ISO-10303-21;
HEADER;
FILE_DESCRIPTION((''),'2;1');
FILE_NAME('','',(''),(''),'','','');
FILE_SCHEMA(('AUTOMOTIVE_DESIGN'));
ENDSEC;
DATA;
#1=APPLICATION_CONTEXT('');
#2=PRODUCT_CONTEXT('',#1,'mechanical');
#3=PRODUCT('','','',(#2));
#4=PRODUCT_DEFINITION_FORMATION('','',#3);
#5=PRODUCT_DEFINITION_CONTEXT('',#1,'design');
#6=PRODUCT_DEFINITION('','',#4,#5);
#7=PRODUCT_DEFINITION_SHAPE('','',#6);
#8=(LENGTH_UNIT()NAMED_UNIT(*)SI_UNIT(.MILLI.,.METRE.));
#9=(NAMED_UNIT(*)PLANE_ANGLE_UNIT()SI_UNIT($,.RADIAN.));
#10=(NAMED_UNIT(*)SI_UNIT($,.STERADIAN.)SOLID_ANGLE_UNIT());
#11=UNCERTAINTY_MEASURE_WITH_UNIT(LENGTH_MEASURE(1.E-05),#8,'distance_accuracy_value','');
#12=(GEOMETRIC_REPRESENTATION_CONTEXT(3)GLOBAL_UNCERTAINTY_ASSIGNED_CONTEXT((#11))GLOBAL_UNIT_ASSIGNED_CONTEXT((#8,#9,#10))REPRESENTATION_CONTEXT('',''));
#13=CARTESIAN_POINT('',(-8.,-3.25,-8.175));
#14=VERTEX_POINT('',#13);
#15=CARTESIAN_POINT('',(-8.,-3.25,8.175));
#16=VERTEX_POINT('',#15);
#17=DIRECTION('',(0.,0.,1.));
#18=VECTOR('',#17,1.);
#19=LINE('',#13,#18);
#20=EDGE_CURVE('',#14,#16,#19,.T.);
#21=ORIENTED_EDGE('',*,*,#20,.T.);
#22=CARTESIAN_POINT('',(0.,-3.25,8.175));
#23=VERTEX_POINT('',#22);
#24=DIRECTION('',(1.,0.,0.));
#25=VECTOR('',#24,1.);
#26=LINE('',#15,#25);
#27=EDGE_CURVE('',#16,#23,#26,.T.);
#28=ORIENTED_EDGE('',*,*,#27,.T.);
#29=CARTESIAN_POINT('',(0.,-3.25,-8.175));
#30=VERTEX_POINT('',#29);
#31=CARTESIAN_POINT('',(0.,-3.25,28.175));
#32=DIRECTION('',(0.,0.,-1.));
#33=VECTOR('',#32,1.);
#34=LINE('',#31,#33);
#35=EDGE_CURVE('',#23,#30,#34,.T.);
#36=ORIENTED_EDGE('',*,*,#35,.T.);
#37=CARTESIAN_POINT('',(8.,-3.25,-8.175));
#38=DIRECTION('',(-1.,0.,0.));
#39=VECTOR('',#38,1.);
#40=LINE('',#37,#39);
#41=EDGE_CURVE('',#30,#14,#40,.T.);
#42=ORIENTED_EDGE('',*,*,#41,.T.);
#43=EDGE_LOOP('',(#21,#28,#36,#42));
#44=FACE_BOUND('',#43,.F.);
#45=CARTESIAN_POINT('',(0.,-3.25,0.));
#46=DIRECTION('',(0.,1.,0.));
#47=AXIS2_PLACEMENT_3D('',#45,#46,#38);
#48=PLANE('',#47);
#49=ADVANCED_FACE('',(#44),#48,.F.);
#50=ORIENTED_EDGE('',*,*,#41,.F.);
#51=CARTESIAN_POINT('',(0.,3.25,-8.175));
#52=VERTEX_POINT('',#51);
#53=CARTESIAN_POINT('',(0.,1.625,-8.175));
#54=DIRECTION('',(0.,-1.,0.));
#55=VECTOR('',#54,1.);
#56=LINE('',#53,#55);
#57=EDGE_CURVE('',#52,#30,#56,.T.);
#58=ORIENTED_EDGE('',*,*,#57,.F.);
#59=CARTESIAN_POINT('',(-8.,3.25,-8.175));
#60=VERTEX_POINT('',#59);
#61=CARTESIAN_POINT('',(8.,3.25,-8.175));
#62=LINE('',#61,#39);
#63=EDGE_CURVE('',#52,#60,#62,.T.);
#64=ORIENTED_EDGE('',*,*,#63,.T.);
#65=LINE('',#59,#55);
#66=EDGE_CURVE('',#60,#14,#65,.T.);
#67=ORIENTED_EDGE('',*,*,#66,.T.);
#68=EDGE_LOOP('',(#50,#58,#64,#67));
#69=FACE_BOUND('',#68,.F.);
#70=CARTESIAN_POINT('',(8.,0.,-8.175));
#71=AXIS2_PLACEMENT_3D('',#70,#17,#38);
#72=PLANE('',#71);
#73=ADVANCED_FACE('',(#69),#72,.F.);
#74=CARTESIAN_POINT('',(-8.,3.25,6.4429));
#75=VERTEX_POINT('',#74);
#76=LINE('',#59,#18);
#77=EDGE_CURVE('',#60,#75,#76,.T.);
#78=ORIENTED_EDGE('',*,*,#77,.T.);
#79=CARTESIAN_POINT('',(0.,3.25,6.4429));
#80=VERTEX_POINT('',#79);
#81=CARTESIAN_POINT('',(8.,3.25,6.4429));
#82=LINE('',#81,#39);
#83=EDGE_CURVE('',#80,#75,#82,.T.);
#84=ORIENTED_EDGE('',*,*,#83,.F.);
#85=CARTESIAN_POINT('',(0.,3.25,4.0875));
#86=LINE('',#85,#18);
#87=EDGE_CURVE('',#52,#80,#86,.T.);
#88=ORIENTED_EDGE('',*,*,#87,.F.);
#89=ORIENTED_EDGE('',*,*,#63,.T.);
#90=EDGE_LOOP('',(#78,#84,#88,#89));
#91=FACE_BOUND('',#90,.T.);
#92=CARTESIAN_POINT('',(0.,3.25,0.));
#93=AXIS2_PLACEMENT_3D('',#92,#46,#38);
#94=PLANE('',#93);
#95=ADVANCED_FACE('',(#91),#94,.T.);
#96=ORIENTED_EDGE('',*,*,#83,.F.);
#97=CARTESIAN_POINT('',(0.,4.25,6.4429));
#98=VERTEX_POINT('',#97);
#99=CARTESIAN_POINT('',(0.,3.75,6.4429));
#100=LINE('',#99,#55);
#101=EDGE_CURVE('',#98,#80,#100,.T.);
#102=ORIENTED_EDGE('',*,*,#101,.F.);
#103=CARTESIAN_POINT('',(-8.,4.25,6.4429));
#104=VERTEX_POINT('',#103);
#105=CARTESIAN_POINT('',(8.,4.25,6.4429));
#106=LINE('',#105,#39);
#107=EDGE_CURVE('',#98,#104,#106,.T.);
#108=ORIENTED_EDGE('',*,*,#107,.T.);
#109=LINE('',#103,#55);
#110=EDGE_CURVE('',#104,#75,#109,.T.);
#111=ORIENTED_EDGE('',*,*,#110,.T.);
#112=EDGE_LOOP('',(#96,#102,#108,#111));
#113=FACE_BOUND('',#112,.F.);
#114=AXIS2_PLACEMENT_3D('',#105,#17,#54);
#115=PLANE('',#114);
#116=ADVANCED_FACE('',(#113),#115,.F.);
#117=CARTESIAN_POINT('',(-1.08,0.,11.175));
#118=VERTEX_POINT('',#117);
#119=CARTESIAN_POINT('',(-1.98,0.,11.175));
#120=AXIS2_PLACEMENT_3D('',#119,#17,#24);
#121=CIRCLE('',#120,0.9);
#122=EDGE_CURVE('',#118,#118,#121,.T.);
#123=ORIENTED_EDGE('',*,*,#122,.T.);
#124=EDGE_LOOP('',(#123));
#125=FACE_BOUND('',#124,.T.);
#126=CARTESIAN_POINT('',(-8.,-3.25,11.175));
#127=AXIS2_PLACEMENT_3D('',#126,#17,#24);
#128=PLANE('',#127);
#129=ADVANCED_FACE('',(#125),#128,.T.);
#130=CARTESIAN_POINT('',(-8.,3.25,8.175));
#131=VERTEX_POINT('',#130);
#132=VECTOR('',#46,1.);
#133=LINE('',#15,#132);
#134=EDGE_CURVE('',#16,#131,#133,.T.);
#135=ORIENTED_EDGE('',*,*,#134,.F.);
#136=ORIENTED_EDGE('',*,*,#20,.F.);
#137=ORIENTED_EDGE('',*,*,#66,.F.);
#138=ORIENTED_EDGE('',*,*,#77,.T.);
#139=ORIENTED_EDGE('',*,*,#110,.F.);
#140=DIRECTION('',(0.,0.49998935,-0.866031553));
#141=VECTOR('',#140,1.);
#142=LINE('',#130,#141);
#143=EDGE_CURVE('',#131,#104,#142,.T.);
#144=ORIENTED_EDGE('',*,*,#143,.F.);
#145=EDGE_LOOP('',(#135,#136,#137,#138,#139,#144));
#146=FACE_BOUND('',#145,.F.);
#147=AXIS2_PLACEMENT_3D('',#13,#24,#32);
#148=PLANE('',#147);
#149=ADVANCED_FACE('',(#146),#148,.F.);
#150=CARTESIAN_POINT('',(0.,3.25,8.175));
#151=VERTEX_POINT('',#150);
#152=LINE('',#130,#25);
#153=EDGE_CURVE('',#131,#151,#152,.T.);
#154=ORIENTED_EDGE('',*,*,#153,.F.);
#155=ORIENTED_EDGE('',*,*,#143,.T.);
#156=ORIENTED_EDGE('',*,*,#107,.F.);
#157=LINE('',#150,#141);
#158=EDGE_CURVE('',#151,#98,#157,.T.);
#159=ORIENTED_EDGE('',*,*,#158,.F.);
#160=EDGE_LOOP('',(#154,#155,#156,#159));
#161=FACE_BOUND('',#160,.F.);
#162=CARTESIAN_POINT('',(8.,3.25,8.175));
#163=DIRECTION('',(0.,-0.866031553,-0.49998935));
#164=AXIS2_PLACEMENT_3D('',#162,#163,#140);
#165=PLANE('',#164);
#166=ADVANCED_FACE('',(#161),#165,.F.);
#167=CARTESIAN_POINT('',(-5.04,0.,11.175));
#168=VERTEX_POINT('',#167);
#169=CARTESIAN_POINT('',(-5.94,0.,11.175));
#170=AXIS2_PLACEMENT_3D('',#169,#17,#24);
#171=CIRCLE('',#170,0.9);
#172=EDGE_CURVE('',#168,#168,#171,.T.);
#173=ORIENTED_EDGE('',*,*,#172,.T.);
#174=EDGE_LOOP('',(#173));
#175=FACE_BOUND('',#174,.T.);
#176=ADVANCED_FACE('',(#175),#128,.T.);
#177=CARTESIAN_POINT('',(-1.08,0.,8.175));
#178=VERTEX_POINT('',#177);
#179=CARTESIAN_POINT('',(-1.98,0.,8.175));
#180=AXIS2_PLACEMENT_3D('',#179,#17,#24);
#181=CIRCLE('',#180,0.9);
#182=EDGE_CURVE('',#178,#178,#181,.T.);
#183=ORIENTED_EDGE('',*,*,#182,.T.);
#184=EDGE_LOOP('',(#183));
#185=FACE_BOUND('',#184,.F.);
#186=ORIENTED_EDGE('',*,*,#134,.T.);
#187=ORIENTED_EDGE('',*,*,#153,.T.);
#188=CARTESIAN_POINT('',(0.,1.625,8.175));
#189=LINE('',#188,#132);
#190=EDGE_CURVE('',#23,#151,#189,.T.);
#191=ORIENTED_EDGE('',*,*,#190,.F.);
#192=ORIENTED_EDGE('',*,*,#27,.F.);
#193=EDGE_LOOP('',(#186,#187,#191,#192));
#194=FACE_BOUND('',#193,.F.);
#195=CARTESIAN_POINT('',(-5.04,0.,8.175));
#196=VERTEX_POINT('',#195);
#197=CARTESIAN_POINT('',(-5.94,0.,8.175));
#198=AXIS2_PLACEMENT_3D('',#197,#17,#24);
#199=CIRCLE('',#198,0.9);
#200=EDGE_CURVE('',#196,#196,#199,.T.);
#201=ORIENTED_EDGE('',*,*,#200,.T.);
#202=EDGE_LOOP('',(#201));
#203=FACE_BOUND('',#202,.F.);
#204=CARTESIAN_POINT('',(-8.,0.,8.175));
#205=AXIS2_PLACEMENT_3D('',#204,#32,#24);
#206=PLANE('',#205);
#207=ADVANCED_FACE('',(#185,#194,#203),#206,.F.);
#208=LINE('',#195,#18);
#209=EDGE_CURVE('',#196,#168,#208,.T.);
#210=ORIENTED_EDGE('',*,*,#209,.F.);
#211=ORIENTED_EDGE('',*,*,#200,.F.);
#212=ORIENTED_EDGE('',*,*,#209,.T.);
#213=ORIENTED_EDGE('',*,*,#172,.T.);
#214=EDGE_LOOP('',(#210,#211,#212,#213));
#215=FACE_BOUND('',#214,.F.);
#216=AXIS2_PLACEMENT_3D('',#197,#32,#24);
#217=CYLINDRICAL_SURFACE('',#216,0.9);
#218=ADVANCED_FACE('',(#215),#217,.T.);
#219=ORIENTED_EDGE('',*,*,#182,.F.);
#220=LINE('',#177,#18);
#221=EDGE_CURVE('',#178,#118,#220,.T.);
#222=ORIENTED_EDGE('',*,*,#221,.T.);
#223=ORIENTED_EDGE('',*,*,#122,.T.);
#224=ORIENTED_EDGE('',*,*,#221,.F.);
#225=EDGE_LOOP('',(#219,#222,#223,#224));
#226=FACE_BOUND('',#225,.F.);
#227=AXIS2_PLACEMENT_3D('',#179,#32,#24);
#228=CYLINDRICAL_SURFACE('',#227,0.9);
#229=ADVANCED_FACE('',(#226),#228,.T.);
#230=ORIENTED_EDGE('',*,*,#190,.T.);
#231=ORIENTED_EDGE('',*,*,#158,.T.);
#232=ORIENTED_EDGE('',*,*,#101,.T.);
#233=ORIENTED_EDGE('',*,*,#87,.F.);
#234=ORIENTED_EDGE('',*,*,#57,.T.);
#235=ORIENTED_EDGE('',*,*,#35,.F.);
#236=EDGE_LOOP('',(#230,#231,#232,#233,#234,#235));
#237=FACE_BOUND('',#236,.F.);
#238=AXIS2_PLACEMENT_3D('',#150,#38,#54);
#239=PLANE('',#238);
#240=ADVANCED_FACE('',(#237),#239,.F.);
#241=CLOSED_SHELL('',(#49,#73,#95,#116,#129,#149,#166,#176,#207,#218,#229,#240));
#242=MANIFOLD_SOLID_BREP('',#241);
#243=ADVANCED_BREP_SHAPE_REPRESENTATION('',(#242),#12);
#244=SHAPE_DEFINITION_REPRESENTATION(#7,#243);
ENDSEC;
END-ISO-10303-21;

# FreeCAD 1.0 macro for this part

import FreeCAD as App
import Part
import Sketcher

V = App.Vector
Q = App.Units.Quantity

doc = App.newDocument("Part")
params = doc.addObject("Spreadsheet::Sheet", "Params")
for row, (alias, value) in enumerate([
    ("sketch1_width", "16 mm"),
    ("sketch1_height", "16.35 mm"),
    ("pad1_length", "6.5 mm"),
    ("sketch2_width", "1 mm"),
    ("pad2_length", "16 mm"),
    ("sketch3_diameter", "1.8 mm"),
    ("pad3_length", "3 mm"),
    ("sketch4_height", "8 mm"),
    ("pocket1_length", "40 mm"),
], start=1):
    params.set(f"A{row}", alias)
    params.set(f"B{row}", "=" + value)
    params.setAlias(f"B{row}", alias)

body = doc.addObject("PartDesign::Body", "Body")

sketch1 = doc.addObject("Sketcher::SketchObject", "Sketch")
body.addObject(sketch1)
sketch1.AttachmentSupport = (doc.XZ_Plane, [""])
sketch1.MapMode = "FlatFace"
sketch1.addGeometry(Part.LineSegment(V(-8, -8.175, 0), V(-8, 8.175, 0)), False)
sketch1.addGeometry(Part.LineSegment(V(-8, 8.175, 0), V(8, 8.175, 0)), False)
sketch1.addGeometry(Part.LineSegment(V(8, 8.175, 0), V(8, -8.175, 0)), False)
sketch1.addGeometry(Part.LineSegment(V(8, -8.175, 0), V(-8, -8.175, 0)), False)
sketch1.addConstraint(Sketcher.Constraint("Coincident", 0, 2, 1, 1))
sketch1.addConstraint(Sketcher.Constraint("Coincident", 1, 2, 2, 1))
sketch1.addConstraint(Sketcher.Constraint("Coincident", 2, 2, 3, 1))
sketch1.addConstraint(Sketcher.Constraint("Coincident", 3, 2, 0, 1))
sketch1.addConstraint(Sketcher.Constraint("Vertical", 0))
sketch1.addConstraint(Sketcher.Constraint("Horizontal", 1))
sketch1.addConstraint(Sketcher.Constraint("Vertical", 2))
sketch1.addConstraint(Sketcher.Constraint("Horizontal", 3))
sketch1.addConstraint(Sketcher.Constraint("Symmetric", 0, 2, 2, 2, -1, 1))
sketch1.addConstraint(Sketcher.Constraint("DistanceX", 1, 1, 1, 2, 16.0))
sketch1.addConstraint(Sketcher.Constraint("DistanceY", 0, 1, 0, 2, 16.35))
sketch1.setExpression("Constraints[9]", "Params.sketch1_width")
sketch1.setExpression("Constraints[10]", "Params.sketch1_height")
pad1 = doc.addObject("PartDesign::Pad", "Pad")
body.addObject(pad1)
pad1.Profile = sketch1
pad1.setExpression("Length", "Params.pad1_length")
pad1.Midplane = True

sketch2 = doc.addObject("Sketcher::SketchObject", "Sketch001")
body.addObject(sketch2)
sketch2.AttachmentSupport = (doc.YZ_Plane, [""])
sketch2.MapMode = "FlatFace"
sketch2.AttachmentOffset = App.Placement(V(0, 0, 8), App.Rotation())
sketch2.addGeometry(Part.LineSegment(V(3.25, 8.175, 0), V(3.25, 6.4429, 0)), False)
sketch2.addGeometry(Part.LineSegment(V(3.25, 6.4429, 0), V(4.25, 6.4429, 0)), False)
sketch2.addGeometry(Part.LineSegment(V(4.25, 6.4429, 0), V(3.25, 8.175, 0)), False)
sketch2.addConstraint(Sketcher.Constraint("Coincident", 0, 2, 1, 1))
sketch2.addConstraint(Sketcher.Constraint("Coincident", 1, 2, 2, 1))
sketch2.addConstraint(Sketcher.Constraint("Coincident", 2, 2, 0, 1))
sketch2.addConstraint(Sketcher.Constraint("Vertical", 0))
sketch2.addConstraint(Sketcher.Constraint("Horizontal", 1))
sketch2.addConstraint(Sketcher.Constraint("DistanceX", 1, 1, 1, 2, 1.0))
sketch2.addConstraint(Sketcher.Constraint("Angle", 2, Q("119.9993 deg")))
sketch2.addConstraint(Sketcher.Constraint("DistanceX", -1, 1, 0, 2, 3.25))
sketch2.addConstraint(Sketcher.Constraint("DistanceY", -1, 1, 0, 2, 6.443))
sketch2.setExpression("Constraints[5]", "Params.sketch2_width")
pad2 = doc.addObject("PartDesign::Pad", "Pad001")
body.addObject(pad2)
pad2.Profile = sketch2
pad2.setExpression("Length", "Params.pad2_length")
pad2.Reversed = True

sketch3 = doc.addObject("Sketcher::SketchObject", "Sketch002")
body.addObject(sketch3)
sketch3.AttachmentSupport = (doc.XY_Plane, [""])
sketch3.MapMode = "FlatFace"
sketch3.AttachmentOffset = App.Placement(V(0, 0, 8.175), App.Rotation())
sketch3.addGeometry(Part.Circle(V(5.94, 0, 0), V(0, 0, 1), 0.9), False)
sketch3.addGeometry(Part.Circle(V(1.98, 0, 0), V(0, 0, 1), 0.9), False)
sketch3.addGeometry(Part.Circle(V(-1.98, 0, 0), V(0, 0, 1), 0.9), False)
sketch3.addGeometry(Part.Circle(V(-5.94, 0, 0), V(0, 0, 1), 0.9), False)
sketch3.addConstraint(Sketcher.Constraint("Equal", 0, 1))
sketch3.addConstraint(Sketcher.Constraint("Equal", 1, 2))
sketch3.addConstraint(Sketcher.Constraint("Equal", 2, 3))
sketch3.addConstraint(Sketcher.Constraint("Symmetric", 1, 3, 2, 3, -1, 1))
sketch3.addConstraint(Sketcher.Constraint("Symmetric", 0, 3, 3, 3, -1, 1))
sketch3.addConstraint(Sketcher.Constraint("PointOnObject", 0, 3, -1))
sketch3.addConstraint(Sketcher.Constraint("PointOnObject", 1, 3, -1))
sketch3.addConstraint(Sketcher.Constraint("Diameter", 0, 1.8))
sketch3.addConstraint(Sketcher.Constraint("DistanceX", 1, 3, 0, 3, 3.96))
sketch3.addConstraint(Sketcher.Constraint("DistanceX", 2, 3, 1, 3, 3.96))
sketch3.setExpression("Constraints[7]", "Params.sketch3_diameter")
pad3 = doc.addObject("PartDesign::Pad", "Pad002")
body.addObject(pad3)
pad3.Profile = sketch3
pad3.setExpression("Length", "Params.pad3_length")

sketch4 = doc.addObject("Sketcher::SketchObject", "Sketch003")
body.addObject(sketch4)
sketch4.AttachmentSupport = (doc.XY_Plane, [""])
sketch4.MapMode = "FlatFace"
sketch4.AttachmentOffset = App.Placement(V(0, 0, 8.175), App.Rotation())
sketch4.addGeometry(Part.LineSegment(V(0, -3.25, 0), V(8.3652, -3.25, 0)), False)
sketch4.addGeometry(Part.LineSegment(V(8.3652, -3.25, 0), V(8.3652, 4.7501, 0)), False)
sketch4.addGeometry(Part.LineSegment(V(8.3652, 4.7501, 0), V(0, 4.7501, 0)), False)
sketch4.addGeometry(Part.LineSegment(V(0, 4.7501, 0), V(0, -3.25, 0)), False)
sketch4.addConstraint(Sketcher.Constraint("Coincident", 0, 2, 1, 1))
sketch4.addConstraint(Sketcher.Constraint("Coincident", 1, 2, 2, 1))
sketch4.addConstraint(Sketcher.Constraint("Coincident", 2, 2, 3, 1))
sketch4.addConstraint(Sketcher.Constraint("Coincident", 3, 2, 0, 1))
sketch4.addConstraint(Sketcher.Constraint("Horizontal", 0))
sketch4.addConstraint(Sketcher.Constraint("Vertical", 1))
sketch4.addConstraint(Sketcher.Constraint("Horizontal", 2))
sketch4.addConstraint(Sketcher.Constraint("Vertical", 3))
sketch4.addConstraint(Sketcher.Constraint("PointOnObject", 2, 2, -2))
sketch4.addConstraint(Sketcher.Constraint("DistanceY", 1, 1, 1, 2, 8.0))
sketch4.addConstraint(Sketcher.Constraint("DistanceY", 0, 2, -1, 1, 3.25))
sketch4.addConstraint(Sketcher.Constraint("DistanceX", 0, 1, 0, 2, 8.3652))
sketch4.setExpression("Constraints[9]", "Params.sketch4_height")
pocket1 = doc.addObject("PartDesign::Pocket", "Pocket")
body.addObject(pocket1)
pocket1.Profile = sketch4
pocket1.setExpression("Length", "Params.pocket1_length")
pocket1.Midplane = True

doc.recompute()
